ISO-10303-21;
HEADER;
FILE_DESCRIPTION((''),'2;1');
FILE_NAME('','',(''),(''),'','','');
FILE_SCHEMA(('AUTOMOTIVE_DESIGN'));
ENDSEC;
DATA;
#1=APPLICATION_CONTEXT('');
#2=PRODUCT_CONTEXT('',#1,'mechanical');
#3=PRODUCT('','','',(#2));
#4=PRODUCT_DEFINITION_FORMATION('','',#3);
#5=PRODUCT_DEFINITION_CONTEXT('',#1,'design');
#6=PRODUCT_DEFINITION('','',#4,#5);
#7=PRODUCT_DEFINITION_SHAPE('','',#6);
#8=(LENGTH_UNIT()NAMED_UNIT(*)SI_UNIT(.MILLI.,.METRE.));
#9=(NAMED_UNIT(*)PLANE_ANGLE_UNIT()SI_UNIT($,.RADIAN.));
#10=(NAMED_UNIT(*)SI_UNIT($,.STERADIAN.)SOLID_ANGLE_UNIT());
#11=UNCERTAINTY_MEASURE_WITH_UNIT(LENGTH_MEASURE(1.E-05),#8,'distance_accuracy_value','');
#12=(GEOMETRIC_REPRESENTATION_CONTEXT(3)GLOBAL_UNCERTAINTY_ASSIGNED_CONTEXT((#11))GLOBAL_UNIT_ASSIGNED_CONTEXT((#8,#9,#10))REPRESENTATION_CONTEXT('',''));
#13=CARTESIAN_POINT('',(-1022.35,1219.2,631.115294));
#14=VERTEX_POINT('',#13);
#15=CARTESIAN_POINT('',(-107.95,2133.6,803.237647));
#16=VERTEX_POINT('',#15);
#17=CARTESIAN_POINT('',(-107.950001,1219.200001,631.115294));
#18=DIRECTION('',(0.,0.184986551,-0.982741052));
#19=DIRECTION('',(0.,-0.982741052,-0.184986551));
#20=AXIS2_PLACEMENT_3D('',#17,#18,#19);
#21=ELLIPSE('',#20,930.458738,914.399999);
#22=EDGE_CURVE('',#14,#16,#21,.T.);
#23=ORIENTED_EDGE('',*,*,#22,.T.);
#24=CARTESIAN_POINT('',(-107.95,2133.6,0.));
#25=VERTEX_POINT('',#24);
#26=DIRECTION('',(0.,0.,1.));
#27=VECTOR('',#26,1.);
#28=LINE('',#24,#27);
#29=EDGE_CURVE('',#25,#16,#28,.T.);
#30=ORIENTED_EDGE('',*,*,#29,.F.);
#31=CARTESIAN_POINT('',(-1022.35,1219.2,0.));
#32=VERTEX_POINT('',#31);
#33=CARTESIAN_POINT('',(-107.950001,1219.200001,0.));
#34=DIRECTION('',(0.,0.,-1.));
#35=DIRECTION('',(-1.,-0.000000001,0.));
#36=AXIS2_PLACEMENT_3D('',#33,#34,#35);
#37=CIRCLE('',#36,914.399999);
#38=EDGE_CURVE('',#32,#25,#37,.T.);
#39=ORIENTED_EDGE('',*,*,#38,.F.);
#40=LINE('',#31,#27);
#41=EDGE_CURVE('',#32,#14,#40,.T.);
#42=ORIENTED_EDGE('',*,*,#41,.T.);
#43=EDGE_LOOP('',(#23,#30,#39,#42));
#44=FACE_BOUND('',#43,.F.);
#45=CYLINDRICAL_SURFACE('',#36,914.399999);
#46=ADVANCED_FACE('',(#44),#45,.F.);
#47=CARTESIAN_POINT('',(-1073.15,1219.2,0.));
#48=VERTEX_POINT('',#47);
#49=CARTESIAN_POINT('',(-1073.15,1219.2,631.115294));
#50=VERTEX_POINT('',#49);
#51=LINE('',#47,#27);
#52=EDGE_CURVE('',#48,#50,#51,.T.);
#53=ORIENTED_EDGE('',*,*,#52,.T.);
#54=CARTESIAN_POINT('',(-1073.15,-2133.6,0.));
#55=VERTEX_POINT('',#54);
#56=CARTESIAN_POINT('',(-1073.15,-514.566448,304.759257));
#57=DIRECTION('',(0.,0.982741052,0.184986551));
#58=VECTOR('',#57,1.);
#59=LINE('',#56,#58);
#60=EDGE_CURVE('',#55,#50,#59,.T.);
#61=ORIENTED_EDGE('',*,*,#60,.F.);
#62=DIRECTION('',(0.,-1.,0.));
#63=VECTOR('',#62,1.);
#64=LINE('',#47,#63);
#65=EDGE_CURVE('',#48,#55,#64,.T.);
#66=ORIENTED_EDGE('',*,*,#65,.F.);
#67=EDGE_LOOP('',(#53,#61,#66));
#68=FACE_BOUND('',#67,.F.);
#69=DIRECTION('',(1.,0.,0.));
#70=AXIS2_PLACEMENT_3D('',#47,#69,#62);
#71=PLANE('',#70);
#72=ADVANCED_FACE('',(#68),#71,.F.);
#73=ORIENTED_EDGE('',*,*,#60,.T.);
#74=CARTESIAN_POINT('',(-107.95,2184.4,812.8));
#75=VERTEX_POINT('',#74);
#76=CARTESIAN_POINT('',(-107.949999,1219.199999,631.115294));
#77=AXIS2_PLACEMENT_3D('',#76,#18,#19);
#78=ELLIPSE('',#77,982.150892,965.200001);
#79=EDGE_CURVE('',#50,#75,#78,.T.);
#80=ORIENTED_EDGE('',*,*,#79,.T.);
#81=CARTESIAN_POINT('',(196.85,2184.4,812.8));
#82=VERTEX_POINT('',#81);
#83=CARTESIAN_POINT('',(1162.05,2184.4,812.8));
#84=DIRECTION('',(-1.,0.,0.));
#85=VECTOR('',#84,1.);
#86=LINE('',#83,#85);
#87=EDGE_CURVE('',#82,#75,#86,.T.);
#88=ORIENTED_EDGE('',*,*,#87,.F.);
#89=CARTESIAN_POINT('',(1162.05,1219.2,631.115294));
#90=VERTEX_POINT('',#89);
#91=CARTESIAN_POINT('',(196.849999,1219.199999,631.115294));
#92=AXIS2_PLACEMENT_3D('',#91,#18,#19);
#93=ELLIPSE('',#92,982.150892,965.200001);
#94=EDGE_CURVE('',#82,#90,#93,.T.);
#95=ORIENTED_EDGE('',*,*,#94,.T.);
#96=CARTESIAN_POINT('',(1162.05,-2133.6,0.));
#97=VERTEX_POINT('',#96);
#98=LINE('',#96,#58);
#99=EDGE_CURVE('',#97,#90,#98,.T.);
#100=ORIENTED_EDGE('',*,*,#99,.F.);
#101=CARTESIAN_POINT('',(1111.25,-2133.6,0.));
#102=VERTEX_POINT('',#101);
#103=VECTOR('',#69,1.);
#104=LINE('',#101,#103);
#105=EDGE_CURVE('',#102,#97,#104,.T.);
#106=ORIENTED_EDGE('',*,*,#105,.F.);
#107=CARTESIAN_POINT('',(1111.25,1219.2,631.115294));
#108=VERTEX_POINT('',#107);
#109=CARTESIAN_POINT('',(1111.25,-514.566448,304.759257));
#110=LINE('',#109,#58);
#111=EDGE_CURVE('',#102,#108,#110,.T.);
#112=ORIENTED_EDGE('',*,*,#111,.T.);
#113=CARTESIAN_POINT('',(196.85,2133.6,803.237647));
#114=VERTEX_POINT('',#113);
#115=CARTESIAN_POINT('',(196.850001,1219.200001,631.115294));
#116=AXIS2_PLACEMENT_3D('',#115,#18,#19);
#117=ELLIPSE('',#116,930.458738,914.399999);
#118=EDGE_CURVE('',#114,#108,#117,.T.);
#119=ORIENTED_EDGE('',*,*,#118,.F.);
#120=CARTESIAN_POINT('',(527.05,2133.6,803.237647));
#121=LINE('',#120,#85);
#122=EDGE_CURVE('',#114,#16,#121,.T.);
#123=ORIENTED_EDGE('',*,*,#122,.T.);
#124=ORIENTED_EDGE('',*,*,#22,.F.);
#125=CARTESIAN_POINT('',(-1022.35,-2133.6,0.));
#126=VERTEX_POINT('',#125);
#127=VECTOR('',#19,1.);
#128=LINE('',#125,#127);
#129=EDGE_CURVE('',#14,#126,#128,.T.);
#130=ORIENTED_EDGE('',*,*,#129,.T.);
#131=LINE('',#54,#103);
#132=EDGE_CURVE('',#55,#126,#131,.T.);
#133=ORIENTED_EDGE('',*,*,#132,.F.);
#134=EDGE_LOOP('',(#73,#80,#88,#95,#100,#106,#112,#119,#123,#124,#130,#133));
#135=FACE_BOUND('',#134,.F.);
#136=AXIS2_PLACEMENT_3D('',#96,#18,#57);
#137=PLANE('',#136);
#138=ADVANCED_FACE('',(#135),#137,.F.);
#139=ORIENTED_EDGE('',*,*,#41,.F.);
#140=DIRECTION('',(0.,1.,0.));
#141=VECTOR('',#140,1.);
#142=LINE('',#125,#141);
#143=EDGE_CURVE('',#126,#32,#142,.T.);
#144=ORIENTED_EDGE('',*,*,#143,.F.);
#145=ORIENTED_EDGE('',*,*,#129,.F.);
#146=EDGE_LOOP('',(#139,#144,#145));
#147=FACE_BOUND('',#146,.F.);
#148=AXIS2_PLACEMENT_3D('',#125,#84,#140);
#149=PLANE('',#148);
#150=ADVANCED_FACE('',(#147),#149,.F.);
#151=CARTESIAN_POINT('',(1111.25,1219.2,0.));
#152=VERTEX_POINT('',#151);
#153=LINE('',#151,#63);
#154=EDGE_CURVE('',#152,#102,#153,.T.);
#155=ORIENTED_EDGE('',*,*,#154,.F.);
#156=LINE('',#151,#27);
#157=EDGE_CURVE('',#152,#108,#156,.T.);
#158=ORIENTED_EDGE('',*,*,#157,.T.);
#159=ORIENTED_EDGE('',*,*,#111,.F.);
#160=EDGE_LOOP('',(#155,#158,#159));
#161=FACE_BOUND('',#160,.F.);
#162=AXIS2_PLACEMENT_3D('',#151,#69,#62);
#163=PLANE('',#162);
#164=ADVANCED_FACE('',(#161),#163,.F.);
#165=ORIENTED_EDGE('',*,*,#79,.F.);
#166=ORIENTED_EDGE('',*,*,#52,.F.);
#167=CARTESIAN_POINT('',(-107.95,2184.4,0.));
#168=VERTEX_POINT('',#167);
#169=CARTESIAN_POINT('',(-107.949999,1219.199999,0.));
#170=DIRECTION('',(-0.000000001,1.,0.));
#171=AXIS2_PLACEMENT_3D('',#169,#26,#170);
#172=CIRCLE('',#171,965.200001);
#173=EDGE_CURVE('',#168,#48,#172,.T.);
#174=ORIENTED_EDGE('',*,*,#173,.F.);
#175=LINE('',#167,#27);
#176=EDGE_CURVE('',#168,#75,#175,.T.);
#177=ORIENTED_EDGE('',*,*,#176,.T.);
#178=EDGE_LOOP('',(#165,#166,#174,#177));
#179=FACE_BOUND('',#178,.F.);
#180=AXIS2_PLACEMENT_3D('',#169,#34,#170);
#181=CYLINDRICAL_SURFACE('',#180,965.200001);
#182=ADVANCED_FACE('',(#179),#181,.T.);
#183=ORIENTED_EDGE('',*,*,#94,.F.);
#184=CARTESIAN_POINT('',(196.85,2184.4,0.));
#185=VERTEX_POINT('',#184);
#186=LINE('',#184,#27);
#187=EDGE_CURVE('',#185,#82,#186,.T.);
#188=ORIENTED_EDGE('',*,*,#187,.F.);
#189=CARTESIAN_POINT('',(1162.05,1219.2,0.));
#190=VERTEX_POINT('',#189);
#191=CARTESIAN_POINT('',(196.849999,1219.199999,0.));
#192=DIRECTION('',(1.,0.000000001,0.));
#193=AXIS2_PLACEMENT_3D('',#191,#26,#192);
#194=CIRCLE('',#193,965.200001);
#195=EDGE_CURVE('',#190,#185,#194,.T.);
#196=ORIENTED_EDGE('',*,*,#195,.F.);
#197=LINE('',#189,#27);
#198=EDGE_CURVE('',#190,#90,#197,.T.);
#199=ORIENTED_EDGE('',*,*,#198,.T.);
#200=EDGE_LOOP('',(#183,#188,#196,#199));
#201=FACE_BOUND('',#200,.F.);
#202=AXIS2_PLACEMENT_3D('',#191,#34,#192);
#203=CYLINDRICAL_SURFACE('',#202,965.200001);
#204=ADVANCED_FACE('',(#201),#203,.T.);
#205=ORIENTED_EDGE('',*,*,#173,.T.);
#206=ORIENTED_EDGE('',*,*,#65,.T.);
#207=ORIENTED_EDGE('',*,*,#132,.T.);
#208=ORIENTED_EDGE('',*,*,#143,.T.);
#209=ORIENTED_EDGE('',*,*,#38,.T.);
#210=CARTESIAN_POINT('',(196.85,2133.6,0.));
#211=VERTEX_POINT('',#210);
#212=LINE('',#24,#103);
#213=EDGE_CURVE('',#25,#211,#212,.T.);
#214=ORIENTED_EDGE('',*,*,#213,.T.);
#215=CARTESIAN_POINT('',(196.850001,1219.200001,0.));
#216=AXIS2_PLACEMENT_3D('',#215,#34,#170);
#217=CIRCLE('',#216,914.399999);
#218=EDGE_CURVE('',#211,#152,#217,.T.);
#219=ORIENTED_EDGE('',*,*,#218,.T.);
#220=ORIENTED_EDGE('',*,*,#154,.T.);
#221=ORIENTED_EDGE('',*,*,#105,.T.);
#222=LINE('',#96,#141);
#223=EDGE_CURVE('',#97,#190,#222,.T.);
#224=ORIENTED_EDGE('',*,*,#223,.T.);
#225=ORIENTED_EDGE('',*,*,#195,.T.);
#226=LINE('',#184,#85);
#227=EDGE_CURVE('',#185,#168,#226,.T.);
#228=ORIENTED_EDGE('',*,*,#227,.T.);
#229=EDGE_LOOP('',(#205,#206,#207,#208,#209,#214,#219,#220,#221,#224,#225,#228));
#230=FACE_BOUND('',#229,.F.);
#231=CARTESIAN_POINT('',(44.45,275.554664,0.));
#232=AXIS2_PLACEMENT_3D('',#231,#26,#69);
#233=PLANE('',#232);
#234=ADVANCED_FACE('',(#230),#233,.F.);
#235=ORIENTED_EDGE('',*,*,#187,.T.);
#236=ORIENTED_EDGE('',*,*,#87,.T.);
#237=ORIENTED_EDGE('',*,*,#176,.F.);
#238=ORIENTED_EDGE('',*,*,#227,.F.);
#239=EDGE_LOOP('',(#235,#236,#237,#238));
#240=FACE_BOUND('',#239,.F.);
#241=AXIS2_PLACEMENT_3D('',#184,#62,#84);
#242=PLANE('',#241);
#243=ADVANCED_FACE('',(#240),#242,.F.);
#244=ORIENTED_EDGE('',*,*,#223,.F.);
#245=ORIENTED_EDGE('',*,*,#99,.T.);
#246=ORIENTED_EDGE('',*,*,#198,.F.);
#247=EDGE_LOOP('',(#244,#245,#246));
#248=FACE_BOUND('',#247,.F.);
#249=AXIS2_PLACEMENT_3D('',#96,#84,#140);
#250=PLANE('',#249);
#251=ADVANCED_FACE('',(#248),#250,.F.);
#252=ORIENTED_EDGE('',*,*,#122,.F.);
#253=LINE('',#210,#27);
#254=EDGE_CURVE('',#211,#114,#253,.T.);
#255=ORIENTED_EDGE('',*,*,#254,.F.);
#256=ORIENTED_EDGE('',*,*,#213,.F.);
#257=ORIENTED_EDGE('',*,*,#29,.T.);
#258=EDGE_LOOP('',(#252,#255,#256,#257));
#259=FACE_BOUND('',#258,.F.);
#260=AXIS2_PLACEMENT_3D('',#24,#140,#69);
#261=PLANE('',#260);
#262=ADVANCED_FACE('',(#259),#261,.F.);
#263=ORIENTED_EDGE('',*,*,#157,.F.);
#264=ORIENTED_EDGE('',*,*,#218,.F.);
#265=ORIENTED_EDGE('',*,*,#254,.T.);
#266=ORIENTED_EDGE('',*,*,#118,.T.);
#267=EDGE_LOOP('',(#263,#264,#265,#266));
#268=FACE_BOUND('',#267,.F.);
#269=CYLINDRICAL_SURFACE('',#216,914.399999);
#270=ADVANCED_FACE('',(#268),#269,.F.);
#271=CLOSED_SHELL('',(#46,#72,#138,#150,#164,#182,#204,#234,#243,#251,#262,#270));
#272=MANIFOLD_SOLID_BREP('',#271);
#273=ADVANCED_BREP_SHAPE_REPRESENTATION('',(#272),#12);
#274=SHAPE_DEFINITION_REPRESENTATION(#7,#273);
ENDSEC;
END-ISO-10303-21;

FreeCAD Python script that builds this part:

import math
import FreeCAD as App
import Part
import Sketcher
from FreeCAD import Vector
Q = App.Units.Quantity


def add_polygon(sketch, points):
    """Adds a closed chain of lines whose ends are joined by coincident constraints."""
    first, n = sketch.GeometryCount, len(points)
    for a, b in zip(points, points[1:] + points[:1]):
        sketch.addGeometry(Part.LineSegment(App.Vector(*a, 0), App.Vector(*b, 0)), False)
    for i in range(n):
        sketch.addConstraint(Sketcher.Constraint("Coincident", first + i, 2, first + (i + 1) % n, 1))

doc = App.newDocument("Part")
params = doc.addObject("Spreadsheet::Sheet", "Params")
for row, (alias, value) in enumerate([
    ("sketch1_radius", "36 in"),
    ("sketch1_radius2", "38 in"),
    ("sketch1_width", "12 in"),
    ("sketch1_height", "132 in"),
    ("pad1_length", "48 in"),
    ("sketch2_width", "170 in"),
    ("sketch2_height", "16 in"),
    ("sketch2_height2", "48 in"),
], start=1):
    params.set(f"A{row}", alias)
    params.set(f"B{row}", "=" + value)
    params.setAlias(f"B{row}", alias)

body = doc.addObject("PartDesign::Body", "Body")

# Sketch on XY plane
sketch1 = doc.addObject("Sketcher::SketchObject", "Sketch")
body.addObject(sketch1)
sketch1.AttachmentSupport = (doc.XY_Plane, [""])
sketch1.MapMode = "FlatFace"
sketch1.addGeometry(Part.ArcOfCircle(Part.Circle(Vector(-108, 1219, 0), Vector(0, 0, 1), 914), math.radians(90), math.radians(180)), False)
sketch1.addGeometry(Part.LineSegment(Vector(-108, 2134, 0), Vector(197, 2134, 0)), False)
sketch1.addGeometry(Part.ArcOfCircle(Part.Circle(Vector(197, 1219, 0), Vector(0, 0, 1), 914), math.radians(0), math.radians(90)), False)
sketch1.addGeometry(Part.LineSegment(Vector(1111, 1219, 0), Vector(1111, -2134, 0)), False)
sketch1.addGeometry(Part.LineSegment(Vector(1111, -2134, 0), Vector(1162, -2134, 0)), False)
sketch1.addGeometry(Part.LineSegment(Vector(1162, -2134, 0), Vector(1162, 1219, 0)), False)
sketch1.addGeometry(Part.ArcOfCircle(Part.Circle(Vector(197, 1219, 0), Vector(0, 0, 1), 965), math.radians(0), math.radians(90)), False)
sketch1.addGeometry(Part.LineSegment(Vector(197, 2184, 0), Vector(-108, 2184, 0)), False)
sketch1.addGeometry(Part.ArcOfCircle(Part.Circle(Vector(-108, 1219, 0), Vector(0, 0, 1), 965), math.radians(90), math.radians(180)), False)
sketch1.addGeometry(Part.LineSegment(Vector(-1073, 1219, 0), Vector(-1073, -2134, 0)), False)
sketch1.addGeometry(Part.LineSegment(Vector(-1073, -2134, 0), Vector(-1022, -2134, 0)), False)
sketch1.addGeometry(Part.LineSegment(Vector(-1022, -2134, 0), Vector(-1022, 1219, 0)), False)
sketch1.addConstraint(Sketcher.Constraint("Tangent", 0, 1, 1, 1))
sketch1.addConstraint(Sketcher.Constraint("Tangent", 1, 2, 2, 2))
sketch1.addConstraint(Sketcher.Constraint("Coincident", 2, 1, 3, 1))
sketch1.addConstraint(Sketcher.Constraint("Coincident", 3, 2, 4, 1))
sketch1.addConstraint(Sketcher.Constraint("Coincident", 4, 2, 5, 1))
sketch1.addConstraint(Sketcher.Constraint("Coincident", 5, 2, 6, 1))
sketch1.addConstraint(Sketcher.Constraint("Tangent", 6, 2, 7, 1))
sketch1.addConstraint(Sketcher.Constraint("Coincident", 7, 2, 8, 1))
sketch1.addConstraint(Sketcher.Constraint("Coincident", 8, 2, 9, 1))
sketch1.addConstraint(Sketcher.Constraint("Coincident", 9, 2, 10, 1))
sketch1.addConstraint(Sketcher.Constraint("Coincident", 10, 2, 11, 1))
sketch1.addConstraint(Sketcher.Constraint("Coincident", 11, 2, 0, 2))
sketch1.addConstraint(Sketcher.Constraint("Horizontal", 1))
sketch1.addConstraint(Sketcher.Constraint("Vertical", 3))
sketch1.addConstraint(Sketcher.Constraint("Horizontal", 4))
sketch1.addConstraint(Sketcher.Constraint("Vertical", 5))
sketch1.addConstraint(Sketcher.Constraint("Horizontal", 7))
sketch1.addConstraint(Sketcher.Constraint("Vertical", 9))
sketch1.addConstraint(Sketcher.Constraint("Horizontal", 10))
sketch1.addConstraint(Sketcher.Constraint("Vertical", 11))
sketch1.addConstraint(Sketcher.Constraint("Coincident", 6, 3, 2, 3))
sketch1.addConstraint(Sketcher.Constraint("Coincident", 8, 3, 0, 3))
sketch1.addConstraint(Sketcher.Constraint("Equal", 0, 2))
sketch1.addConstraint(Sketcher.Constraint("Horizontal", 4, 2, 9, 2))
sketch1.addConstraint(Sketcher.Constraint("Equal", 1, 7))
sketch1.addConstraint(Sketcher.Constraint("Equal", 3, 5))
sketch1.addConstraint(Sketcher.Constraint("Equal", 5, 9))
sketch1.addConstraint(Sketcher.Constraint("Equal", 9, 11))
sketch1.addConstraint(Sketcher.Constraint("Radius", 0, Q("36 in")))
sketch1.addConstraint(Sketcher.Constraint("Radius", 6, Q("38 in")))
sketch1.addConstraint(Sketcher.Constraint("DistanceX", 1, 1, 1, 2, Q("12 in")))
sketch1.addConstraint(Sketcher.Constraint("DistanceY", 3, 2, 3, 1, Q("132 in")))
sketch1.addConstraint(Sketcher.Constraint("DistanceY", -1, 1, 0, 3, Q("48 in")))
sketch1.addConstraint(Sketcher.Constraint("DistanceY", 3, 2, -1, 1, Q("84 in")))
sketch1.addConstraint(Sketcher.Constraint("DistanceX", 0, 3, -1, 1, Q("4.25 in")))
sketch1.setExpression("Constraints[28]", "Params.sketch1_radius")
sketch1.setExpression("Constraints[29]", "Params.sketch1_radius2")
sketch1.setExpression("Constraints[30]", "Params.sketch1_width")
sketch1.setExpression("Constraints[31]", "Params.sketch1_height")
pad1 = doc.addObject("PartDesign::Pad", "Pad")
body.addObject(pad1)
pad1.Profile = sketch1
pad1.setExpression("Length", "Params.pad1_length")

# Sketch on YZ plane
sketch2 = doc.addObject("Sketcher::SketchObject", "Sketch001")
body.addObject(sketch2)
sketch2.AttachmentSupport = (doc.YZ_Plane, [""])
sketch2.MapMode = "FlatFace"
sketch2.AttachmentOffset = App.Placement(Vector(0, 0, 45.75 * 25.4), App.Rotation())
add_polygon(sketch2, [(2184, 813), (2184, 1219), (-2134, 1219), (-2134, 0)])  # lines 0-3
sketch2.addConstraint(Sketcher.Constraint("Vertical", 0))
sketch2.addConstraint(Sketcher.Constraint("Horizontal", 1))
sketch2.addConstraint(Sketcher.Constraint("Vertical", 2))
sketch2.addConstraint(Sketcher.Constraint("PointOnObject", 2, 2, -1))
sketch2.addConstraint(Sketcher.Constraint("DistanceX", 1, 2, 1, 1, Q("170 in")))
sketch2.addConstraint(Sketcher.Constraint("DistanceY", 0, 1, 0, 2, Q("16 in")))
sketch2.addConstraint(Sketcher.Constraint("DistanceY", 2, 2, 2, 1, Q("48 in")))
sketch2.addConstraint(Sketcher.Constraint("DistanceX", -1, 1, 0, 2, Q("86 in")))
sketch2.setExpression("Constraints[8]", "Params.sketch2_width")
sketch2.setExpression("Constraints[9]", "Params.sketch2_height")
sketch2.setExpression("Constraints[10]", "Params.sketch2_height2")
pocket1 = doc.addObject("PartDesign::Pocket", "Pocket")
body.addObject(pocket1)
pocket1.Profile = sketch2
pocket1.Type = "ThroughAll"

doc.recompute()
